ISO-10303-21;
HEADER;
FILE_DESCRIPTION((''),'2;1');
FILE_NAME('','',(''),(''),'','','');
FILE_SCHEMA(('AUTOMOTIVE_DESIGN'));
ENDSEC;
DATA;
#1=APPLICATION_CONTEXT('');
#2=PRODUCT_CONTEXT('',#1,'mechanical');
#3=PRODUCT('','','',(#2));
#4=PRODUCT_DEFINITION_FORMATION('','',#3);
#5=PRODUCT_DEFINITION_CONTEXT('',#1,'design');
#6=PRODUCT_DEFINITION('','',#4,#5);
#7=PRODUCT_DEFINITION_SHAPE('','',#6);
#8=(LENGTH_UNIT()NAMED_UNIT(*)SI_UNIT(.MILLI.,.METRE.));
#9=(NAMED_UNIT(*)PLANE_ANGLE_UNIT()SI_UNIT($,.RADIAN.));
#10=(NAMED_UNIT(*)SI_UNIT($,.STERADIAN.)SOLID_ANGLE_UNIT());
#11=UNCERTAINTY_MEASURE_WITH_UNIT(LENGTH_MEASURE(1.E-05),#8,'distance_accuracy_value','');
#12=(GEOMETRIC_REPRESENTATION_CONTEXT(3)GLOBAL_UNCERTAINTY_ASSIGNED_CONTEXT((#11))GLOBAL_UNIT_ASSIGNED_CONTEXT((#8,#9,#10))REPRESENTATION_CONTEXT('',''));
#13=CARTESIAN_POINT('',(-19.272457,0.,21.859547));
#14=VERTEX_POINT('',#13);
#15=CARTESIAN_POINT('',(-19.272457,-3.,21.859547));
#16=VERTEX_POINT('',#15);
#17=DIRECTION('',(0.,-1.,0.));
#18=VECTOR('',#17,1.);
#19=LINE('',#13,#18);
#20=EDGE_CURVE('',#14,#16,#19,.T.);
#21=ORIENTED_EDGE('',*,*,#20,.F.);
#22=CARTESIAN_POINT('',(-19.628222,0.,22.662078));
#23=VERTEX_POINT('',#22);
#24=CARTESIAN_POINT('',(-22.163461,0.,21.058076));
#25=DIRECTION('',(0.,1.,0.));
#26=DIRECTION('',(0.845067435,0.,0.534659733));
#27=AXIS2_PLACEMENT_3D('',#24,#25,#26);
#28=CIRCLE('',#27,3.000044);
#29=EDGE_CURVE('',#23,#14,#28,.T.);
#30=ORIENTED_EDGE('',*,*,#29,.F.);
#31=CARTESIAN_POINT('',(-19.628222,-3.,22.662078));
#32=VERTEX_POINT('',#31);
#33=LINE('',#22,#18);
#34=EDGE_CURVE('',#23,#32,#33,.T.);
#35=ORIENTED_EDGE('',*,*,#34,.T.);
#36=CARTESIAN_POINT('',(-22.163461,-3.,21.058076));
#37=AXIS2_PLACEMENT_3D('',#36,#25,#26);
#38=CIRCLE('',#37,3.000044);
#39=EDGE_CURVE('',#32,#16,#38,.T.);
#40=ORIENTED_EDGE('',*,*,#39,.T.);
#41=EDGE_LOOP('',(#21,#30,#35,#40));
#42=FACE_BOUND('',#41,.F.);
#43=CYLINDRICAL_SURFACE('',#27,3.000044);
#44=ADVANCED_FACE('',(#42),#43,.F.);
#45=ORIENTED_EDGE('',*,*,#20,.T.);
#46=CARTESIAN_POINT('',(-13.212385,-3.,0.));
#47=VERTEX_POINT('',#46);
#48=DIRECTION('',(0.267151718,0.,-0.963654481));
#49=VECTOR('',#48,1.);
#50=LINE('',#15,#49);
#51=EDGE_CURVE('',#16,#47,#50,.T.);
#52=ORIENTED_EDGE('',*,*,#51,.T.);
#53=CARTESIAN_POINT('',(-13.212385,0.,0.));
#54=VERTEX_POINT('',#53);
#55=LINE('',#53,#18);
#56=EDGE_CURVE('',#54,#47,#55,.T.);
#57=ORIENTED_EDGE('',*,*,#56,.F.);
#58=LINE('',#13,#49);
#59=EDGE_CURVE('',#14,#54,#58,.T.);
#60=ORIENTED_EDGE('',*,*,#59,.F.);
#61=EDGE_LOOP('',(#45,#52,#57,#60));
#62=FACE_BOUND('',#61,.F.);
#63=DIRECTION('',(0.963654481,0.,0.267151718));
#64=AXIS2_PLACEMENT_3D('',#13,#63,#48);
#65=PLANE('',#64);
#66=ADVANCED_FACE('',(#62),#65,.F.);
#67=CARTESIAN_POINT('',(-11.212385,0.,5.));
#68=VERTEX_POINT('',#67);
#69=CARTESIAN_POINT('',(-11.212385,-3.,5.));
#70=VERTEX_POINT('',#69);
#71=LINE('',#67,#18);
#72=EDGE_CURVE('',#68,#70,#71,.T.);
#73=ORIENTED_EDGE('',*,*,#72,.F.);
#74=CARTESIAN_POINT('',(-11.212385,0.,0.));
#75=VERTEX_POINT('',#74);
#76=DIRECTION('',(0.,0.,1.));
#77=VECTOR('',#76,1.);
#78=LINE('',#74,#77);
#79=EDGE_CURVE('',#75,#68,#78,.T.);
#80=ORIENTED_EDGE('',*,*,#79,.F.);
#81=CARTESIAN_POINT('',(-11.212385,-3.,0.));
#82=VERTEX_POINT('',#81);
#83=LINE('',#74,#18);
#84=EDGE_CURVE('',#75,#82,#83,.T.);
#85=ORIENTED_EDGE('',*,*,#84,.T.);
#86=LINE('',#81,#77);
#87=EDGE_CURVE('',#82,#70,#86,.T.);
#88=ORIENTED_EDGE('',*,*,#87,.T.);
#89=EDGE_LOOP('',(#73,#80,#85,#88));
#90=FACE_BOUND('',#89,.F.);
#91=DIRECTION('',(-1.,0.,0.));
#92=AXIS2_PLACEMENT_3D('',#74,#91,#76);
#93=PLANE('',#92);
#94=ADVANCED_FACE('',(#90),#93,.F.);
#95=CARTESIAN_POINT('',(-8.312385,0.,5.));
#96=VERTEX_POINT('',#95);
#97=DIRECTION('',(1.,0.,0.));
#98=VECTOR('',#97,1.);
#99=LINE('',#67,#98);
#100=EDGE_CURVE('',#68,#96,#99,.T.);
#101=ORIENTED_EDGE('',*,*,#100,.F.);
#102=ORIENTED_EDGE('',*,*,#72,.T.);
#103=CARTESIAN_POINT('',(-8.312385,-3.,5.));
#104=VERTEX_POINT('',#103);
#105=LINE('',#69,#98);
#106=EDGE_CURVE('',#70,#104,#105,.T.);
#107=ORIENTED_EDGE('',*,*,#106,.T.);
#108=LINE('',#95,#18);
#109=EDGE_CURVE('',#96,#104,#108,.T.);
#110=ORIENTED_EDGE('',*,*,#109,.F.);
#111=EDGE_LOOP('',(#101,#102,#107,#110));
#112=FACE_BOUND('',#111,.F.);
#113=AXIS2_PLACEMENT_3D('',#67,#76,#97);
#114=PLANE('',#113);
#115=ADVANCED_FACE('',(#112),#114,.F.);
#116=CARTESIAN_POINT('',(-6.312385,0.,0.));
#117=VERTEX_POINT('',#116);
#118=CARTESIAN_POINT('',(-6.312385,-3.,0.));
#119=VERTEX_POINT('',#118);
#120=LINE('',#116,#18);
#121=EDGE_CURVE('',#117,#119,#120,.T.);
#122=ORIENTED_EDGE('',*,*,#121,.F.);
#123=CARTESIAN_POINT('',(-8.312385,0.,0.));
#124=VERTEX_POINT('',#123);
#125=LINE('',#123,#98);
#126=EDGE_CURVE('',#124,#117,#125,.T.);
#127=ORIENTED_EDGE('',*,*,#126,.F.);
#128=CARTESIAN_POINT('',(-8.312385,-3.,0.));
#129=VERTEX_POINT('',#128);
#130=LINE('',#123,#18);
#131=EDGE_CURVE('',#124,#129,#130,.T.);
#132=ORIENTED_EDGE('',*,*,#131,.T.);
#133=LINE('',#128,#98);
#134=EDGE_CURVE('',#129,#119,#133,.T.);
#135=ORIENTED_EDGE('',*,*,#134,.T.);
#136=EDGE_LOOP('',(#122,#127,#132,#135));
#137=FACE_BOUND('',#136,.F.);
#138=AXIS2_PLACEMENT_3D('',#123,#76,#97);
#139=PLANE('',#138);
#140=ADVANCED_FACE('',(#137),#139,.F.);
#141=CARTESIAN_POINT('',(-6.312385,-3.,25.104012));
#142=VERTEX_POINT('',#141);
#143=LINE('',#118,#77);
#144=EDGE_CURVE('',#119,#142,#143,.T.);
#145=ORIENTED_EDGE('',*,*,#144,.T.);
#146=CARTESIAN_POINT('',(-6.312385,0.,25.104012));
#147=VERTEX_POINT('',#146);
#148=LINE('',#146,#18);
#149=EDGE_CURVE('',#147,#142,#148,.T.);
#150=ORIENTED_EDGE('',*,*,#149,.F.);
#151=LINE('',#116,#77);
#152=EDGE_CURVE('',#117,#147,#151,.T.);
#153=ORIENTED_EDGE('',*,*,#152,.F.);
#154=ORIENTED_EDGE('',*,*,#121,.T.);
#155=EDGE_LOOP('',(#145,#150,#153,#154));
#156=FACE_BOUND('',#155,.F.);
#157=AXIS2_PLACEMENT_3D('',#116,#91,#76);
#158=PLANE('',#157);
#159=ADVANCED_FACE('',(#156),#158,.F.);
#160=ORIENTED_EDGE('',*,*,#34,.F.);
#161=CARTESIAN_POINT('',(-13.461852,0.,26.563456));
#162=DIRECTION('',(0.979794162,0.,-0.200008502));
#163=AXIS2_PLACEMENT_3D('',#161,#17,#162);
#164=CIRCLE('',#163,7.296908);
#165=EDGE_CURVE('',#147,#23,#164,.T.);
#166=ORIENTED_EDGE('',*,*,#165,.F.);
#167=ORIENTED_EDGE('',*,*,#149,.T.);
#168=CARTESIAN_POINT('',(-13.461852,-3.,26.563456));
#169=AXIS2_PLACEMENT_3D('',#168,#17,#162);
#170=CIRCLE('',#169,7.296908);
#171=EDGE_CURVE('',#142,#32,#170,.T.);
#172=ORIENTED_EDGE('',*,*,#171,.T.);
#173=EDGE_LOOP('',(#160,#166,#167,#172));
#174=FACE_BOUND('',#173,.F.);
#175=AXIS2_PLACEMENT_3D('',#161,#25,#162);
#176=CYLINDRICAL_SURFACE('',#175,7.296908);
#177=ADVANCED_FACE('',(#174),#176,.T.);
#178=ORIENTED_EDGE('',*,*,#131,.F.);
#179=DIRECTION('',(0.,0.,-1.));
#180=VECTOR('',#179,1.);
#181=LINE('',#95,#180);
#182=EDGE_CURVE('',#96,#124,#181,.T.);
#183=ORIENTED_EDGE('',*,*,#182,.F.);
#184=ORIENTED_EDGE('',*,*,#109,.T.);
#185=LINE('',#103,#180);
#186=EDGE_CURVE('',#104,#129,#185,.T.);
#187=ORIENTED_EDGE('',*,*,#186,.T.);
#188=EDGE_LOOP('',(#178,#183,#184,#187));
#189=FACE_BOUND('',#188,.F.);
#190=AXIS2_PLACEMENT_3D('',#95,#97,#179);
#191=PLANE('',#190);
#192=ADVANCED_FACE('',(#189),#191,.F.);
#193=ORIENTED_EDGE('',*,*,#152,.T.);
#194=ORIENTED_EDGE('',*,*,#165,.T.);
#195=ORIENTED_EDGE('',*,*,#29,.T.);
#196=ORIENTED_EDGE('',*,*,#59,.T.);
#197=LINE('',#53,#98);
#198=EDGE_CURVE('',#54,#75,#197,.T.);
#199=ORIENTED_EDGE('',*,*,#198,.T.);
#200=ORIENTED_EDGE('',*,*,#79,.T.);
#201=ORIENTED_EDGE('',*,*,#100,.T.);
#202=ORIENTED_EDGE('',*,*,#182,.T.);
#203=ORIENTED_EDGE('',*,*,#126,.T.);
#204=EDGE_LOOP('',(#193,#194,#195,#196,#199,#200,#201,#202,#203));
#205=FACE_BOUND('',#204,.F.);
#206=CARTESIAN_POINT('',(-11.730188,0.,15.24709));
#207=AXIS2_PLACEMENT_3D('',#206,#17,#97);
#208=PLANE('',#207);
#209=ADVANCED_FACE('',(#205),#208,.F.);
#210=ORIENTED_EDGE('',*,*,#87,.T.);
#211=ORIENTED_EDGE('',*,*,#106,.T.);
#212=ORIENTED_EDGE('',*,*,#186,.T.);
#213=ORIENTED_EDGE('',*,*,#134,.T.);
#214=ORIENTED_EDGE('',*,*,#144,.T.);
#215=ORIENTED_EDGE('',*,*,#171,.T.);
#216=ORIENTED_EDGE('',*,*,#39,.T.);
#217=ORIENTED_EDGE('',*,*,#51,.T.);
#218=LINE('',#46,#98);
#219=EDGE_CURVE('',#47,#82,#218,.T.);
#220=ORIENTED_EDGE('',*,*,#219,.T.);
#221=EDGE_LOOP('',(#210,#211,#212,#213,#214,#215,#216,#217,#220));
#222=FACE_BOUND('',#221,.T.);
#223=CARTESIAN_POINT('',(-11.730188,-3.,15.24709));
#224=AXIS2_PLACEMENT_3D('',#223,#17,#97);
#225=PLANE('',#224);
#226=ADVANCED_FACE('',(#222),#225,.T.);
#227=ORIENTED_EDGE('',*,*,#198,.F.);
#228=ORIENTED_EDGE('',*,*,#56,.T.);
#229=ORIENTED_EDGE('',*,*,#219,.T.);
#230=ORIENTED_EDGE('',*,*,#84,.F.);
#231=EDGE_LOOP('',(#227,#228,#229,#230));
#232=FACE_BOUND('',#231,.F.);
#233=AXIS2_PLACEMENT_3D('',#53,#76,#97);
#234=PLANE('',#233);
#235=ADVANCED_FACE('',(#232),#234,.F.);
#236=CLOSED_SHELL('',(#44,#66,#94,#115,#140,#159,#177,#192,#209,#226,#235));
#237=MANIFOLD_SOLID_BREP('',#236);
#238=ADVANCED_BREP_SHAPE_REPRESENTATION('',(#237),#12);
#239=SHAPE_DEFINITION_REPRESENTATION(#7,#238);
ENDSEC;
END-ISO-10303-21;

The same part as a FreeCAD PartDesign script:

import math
import FreeCAD as App
import Part
import Sketcher

doc = App.newDocument("Part")
body = doc.addObject("PartDesign::Body", "Body")

# Sketch on XZ plane
sketch1 = doc.addObject("Sketcher::SketchObject", "Sketch")
body.addObject(sketch1)
sketch1.AttachmentSupport = (doc.XZ_Plane, [""])
sketch1.MapMode = "FlatFace"
sketch1.addGeometry([
    Part.ArcOfCircle(Part.Circle(App.Vector(-22.2, 21.1, 0), App.Vector(0, 0, 1), 3), math.radians(15.49), math.radians(32.32)),  # 0
    Part.LineSegment(App.Vector(-19.3, 21.9, 0), App.Vector(-13.2, 0, 0)),  # 1
    Part.LineSegment(App.Vector(-13.2, 0, 0), App.Vector(-11.2, 0, 0)),  # 2
    Part.LineSegment(App.Vector(-11.2, 0, 0), App.Vector(-11.2, 5, 0)),  # 3
    Part.LineSegment(App.Vector(-11.2, 5, 0), App.Vector(-8.3, 5, 0)),  # 4
    Part.LineSegment(App.Vector(-8.3, 5, 0), App.Vector(-8.3, 0, 0)),  # 5
    Part.LineSegment(App.Vector(-8.3, 0, 0), App.Vector(-6.3, 0, 0)),  # 6
    Part.LineSegment(App.Vector(-6.3, 0, 0), App.Vector(-6.3, 25.1, 0)),  # 7
    Part.ArcOfCircle(Part.Circle(App.Vector(-13.5, 26.6, 0), App.Vector(0, 0, 1), 7.3), math.radians(-12), math.radians(212)),  # 8
], False)
sketch1.addConstraint([
    Sketcher.Constraint("Tangent", 0, 1, 1, 1),
    Sketcher.Constraint("Coincident", 1, 2, 2, 1),
    Sketcher.Constraint("Coincident", 2, 2, 3, 1),
    Sketcher.Constraint("Coincident", 3, 2, 4, 1),
    Sketcher.Constraint("Coincident", 4, 2, 5, 1),
    Sketcher.Constraint("Coincident", 5, 2, 6, 1),
    Sketcher.Constraint("Coincident", 6, 2, 7, 1),
    Sketcher.Constraint("Coincident", 7, 2, 8, 1),
    Sketcher.Constraint("Coincident", 8, 2, 0, 2),
    Sketcher.Constraint("Horizontal", 2),
    Sketcher.Constraint("Vertical", 3),
    Sketcher.Constraint("Horizontal", 4),
    Sketcher.Constraint("Vertical", 5),
    Sketcher.Constraint("Horizontal", 6),
    Sketcher.Constraint("Vertical", 7),
    Sketcher.Constraint("PointOnObject", 1, 2, -1),
    Sketcher.Constraint("PointOnObject", 5, 2, -1),
    Sketcher.Constraint("Equal", 2, 6),
    Sketcher.Constraint("DistanceX", 2, 1, 2, 2, 2.0),
    Sketcher.Constraint("DistanceY", 3, 1, 3, 2, 5.0),
    Sketcher.Constraint("DistanceX", 4, 1, 4, 2, 2.9),
    Sketcher.Constraint("Radius", 0, 3.000044),
    Sketcher.Constraint("Radius", 8, 7.296908),
    Sketcher.Constraint("Distance", 1, 22.684009),
    Sketcher.Constraint("DistanceY", 7, 1, 7, 2, 25.104012),
    Sketcher.Constraint("DistanceX", 0, 3, -1, 1, 22.163461),
    Sketcher.Constraint("DistanceX", 8, 2, -1, 1, 19.628222),
    Sketcher.Constraint("DistanceY", -1, 1, 8, 2, 22.662078),
])
pad1 = doc.addObject("PartDesign::Pad", "Pad")
body.addObject(pad1)
pad1.Profile = sketch1
pad1.Length = 3

doc.recompute()
